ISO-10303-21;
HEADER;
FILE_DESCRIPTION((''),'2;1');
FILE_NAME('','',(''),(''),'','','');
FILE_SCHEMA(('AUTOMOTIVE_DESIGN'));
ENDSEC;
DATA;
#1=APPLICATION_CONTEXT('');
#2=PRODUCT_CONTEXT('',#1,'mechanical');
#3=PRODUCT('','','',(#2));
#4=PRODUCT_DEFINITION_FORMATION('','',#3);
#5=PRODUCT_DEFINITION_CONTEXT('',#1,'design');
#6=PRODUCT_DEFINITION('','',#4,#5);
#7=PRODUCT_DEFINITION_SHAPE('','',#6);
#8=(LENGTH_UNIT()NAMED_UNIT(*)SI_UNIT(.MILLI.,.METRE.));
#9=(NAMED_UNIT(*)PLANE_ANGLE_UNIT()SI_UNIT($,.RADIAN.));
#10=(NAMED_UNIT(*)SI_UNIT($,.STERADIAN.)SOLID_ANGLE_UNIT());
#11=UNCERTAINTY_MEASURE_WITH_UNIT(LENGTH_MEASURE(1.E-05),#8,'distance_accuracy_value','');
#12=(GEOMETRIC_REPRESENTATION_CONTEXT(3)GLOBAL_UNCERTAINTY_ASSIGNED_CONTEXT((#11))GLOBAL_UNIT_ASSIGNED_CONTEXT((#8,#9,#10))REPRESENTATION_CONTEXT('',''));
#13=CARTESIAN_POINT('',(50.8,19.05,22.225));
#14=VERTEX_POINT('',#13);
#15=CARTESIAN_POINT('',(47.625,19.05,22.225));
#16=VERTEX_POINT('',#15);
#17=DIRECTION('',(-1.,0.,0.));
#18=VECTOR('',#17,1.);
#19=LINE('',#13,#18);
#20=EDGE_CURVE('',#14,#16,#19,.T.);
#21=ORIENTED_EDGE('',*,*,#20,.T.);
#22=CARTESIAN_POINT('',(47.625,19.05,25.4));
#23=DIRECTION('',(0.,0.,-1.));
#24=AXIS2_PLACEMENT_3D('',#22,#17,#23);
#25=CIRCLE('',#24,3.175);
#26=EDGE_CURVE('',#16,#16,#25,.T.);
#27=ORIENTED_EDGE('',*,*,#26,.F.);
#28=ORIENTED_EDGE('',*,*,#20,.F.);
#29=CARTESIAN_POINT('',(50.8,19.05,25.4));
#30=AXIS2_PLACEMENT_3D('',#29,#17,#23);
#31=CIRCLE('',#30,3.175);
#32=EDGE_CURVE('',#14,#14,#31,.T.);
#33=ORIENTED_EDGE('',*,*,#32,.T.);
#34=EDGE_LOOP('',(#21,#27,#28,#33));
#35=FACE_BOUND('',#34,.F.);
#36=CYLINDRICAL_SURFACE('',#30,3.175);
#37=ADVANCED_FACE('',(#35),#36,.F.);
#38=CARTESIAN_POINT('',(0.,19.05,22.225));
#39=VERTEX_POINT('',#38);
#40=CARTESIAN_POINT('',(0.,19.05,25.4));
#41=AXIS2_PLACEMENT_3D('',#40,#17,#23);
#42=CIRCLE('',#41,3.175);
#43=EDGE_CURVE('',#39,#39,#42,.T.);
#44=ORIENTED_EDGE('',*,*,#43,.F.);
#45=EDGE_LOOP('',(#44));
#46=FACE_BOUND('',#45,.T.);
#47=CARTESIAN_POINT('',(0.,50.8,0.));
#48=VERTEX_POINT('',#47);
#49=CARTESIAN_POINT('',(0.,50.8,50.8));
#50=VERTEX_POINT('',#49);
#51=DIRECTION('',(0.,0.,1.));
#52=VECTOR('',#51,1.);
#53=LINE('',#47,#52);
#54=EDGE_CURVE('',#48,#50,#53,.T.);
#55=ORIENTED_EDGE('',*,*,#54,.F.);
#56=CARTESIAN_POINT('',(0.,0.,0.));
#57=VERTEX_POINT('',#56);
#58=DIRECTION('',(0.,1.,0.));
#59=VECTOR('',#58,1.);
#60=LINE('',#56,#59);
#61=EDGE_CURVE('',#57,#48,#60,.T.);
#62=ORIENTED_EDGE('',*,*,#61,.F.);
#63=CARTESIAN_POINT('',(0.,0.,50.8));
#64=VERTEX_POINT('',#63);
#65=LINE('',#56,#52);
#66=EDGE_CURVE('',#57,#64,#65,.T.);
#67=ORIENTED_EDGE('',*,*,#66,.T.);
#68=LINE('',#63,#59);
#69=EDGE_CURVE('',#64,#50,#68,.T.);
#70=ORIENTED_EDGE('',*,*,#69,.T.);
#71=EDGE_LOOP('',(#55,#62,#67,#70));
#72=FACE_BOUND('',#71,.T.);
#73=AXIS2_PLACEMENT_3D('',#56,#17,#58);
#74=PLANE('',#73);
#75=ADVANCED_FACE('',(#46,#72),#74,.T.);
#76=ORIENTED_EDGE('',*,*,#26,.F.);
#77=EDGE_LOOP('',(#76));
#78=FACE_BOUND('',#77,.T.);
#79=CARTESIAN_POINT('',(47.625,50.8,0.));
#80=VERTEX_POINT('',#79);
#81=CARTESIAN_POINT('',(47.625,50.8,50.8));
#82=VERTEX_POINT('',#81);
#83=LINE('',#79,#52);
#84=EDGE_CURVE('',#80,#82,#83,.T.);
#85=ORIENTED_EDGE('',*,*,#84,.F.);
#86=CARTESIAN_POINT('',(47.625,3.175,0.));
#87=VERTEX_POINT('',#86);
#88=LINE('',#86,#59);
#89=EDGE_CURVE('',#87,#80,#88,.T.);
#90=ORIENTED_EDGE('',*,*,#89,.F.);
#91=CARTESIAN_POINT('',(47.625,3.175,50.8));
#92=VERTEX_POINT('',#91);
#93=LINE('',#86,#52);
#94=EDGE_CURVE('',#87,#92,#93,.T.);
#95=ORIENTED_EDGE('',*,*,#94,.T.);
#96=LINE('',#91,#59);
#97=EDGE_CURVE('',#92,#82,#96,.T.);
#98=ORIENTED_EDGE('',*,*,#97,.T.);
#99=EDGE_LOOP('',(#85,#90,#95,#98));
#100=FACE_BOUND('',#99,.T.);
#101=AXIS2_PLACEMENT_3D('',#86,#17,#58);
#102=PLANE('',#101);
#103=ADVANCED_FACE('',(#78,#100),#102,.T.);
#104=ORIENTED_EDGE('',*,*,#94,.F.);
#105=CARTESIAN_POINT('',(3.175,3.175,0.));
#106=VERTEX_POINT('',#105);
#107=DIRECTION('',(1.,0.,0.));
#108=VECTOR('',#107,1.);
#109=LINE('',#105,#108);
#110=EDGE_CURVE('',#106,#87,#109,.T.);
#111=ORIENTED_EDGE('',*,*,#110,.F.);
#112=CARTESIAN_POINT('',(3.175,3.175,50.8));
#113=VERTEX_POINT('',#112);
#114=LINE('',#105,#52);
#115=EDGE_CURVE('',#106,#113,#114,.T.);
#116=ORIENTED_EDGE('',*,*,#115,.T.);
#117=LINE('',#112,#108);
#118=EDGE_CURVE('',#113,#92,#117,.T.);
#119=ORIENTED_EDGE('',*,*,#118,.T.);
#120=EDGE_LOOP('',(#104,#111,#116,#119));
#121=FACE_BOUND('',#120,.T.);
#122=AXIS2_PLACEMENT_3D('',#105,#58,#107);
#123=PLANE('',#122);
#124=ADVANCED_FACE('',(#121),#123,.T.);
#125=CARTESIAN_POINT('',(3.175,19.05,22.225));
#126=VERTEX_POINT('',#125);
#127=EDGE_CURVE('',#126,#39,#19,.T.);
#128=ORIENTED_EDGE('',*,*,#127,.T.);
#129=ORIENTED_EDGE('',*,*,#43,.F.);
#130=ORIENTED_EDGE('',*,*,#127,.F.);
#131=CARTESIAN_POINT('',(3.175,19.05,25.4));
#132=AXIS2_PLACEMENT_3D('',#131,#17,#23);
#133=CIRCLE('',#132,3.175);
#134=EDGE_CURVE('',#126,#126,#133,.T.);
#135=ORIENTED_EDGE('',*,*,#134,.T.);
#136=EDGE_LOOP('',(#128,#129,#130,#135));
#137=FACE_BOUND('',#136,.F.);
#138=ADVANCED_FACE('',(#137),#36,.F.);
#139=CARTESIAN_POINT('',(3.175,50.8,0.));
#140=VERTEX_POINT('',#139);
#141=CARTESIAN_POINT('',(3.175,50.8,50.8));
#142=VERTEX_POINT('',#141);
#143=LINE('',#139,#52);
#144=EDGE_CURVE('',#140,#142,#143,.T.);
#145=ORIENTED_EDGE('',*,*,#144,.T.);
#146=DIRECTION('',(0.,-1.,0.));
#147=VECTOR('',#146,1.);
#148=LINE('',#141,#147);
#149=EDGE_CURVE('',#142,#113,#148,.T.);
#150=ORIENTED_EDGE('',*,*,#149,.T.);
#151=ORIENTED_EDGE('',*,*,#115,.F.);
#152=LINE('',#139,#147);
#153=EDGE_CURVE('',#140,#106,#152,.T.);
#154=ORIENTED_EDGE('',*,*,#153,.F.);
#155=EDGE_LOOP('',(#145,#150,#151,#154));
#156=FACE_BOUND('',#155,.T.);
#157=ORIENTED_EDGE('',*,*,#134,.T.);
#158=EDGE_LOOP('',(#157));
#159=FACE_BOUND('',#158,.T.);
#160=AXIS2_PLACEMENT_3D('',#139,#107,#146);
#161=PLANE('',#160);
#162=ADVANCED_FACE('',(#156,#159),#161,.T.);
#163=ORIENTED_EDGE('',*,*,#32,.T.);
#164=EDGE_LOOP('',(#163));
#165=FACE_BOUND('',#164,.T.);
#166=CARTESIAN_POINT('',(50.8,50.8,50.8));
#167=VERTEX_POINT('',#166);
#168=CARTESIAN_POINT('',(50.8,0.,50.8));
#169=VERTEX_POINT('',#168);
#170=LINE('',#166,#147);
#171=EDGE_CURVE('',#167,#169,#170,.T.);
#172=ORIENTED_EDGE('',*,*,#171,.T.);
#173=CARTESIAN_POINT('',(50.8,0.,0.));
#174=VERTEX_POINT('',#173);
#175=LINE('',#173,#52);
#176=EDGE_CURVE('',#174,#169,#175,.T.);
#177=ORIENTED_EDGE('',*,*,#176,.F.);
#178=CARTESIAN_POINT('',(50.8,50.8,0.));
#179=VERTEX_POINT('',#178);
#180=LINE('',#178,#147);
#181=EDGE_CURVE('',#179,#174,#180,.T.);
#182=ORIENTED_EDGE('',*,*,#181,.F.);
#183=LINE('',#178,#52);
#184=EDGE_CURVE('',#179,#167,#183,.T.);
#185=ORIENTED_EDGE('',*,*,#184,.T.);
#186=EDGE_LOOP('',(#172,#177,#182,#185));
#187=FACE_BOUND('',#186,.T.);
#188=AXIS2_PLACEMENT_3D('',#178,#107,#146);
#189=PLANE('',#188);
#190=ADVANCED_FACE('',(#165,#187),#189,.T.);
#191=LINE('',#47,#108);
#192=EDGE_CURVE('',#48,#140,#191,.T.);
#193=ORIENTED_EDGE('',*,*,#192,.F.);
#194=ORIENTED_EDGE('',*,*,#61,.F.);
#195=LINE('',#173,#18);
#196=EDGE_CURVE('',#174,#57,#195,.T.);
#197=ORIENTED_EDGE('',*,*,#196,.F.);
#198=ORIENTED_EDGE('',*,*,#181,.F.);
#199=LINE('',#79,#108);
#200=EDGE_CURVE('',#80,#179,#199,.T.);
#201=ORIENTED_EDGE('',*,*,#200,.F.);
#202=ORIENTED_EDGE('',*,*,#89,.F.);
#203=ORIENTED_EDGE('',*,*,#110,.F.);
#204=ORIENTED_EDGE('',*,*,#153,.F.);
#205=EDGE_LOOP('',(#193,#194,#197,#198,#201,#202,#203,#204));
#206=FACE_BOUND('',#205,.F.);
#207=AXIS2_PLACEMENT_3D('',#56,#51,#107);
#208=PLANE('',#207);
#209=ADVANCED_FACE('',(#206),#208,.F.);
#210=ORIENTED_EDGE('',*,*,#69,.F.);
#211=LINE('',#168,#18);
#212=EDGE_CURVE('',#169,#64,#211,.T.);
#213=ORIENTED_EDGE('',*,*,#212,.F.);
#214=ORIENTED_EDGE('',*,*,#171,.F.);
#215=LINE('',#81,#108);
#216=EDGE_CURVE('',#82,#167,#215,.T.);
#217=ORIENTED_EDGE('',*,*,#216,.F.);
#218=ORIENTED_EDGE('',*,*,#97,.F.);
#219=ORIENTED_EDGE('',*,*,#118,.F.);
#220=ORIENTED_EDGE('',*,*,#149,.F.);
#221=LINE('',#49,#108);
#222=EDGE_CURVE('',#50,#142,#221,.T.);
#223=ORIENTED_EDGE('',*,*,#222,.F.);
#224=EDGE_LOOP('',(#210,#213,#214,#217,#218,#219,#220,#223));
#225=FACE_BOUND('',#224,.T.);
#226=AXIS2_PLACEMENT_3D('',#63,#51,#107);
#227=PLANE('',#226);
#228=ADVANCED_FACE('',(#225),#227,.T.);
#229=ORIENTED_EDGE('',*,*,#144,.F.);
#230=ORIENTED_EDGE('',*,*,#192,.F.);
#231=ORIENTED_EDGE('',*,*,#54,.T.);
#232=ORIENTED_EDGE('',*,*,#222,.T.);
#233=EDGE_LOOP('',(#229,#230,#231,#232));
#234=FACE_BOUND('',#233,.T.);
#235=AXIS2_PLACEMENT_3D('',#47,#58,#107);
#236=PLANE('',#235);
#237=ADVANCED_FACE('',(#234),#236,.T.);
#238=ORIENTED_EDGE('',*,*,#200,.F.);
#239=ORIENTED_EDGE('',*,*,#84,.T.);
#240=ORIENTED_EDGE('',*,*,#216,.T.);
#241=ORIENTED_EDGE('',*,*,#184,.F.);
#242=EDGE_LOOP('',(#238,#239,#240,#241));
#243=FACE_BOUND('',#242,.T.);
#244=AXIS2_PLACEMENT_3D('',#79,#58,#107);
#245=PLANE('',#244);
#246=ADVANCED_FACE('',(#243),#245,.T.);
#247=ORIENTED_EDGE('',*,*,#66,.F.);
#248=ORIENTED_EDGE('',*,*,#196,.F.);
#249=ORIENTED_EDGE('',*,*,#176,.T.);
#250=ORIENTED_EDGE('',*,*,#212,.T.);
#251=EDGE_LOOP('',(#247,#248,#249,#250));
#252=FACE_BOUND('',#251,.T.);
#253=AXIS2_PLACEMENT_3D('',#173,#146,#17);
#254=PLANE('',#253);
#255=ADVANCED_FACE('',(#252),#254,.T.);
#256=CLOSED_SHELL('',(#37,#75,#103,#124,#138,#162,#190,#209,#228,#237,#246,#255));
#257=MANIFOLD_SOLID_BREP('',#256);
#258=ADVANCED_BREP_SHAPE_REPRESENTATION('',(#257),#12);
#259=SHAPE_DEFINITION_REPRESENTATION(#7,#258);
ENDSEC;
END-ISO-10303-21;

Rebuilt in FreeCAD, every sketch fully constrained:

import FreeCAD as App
import Part
import Sketcher
Q = App.Units.Quantity

doc = App.newDocument("Part")
body = doc.addObject("PartDesign::Body", "Body")

# Sketch on XY plane
sketch1 = body.newObject("Sketcher::SketchObject", "Sketch")
sketch1.AttachmentSupport = (doc.getObject("XY_Plane"), [""])
sketch1.MapMode = "FlatFace"
sketch1.addGeometry([
    Part.LineSegment(App.Vector(0, 50.8, 0), App.Vector(0, 0, 0)),  # 0
    Part.LineSegment(App.Vector(0, 0, 0), App.Vector(50.8, 0, 0)),  # 1
    Part.LineSegment(App.Vector(50.8, 0, 0), App.Vector(50.8, 50.8, 0)),  # 2
    Part.LineSegment(App.Vector(50.8, 50.8, 0), App.Vector(47.6, 50.8, 0)),  # 3
    Part.LineSegment(App.Vector(47.6, 50.8, 0), App.Vector(47.6, 3.2, 0)),  # 4
    Part.LineSegment(App.Vector(47.6, 3.2, 0), App.Vector(3.2, 3.2, 0)),  # 5
    Part.LineSegment(App.Vector(3.2, 3.2, 0), App.Vector(3.2, 50.8, 0)),  # 6
    Part.LineSegment(App.Vector(3.2, 50.8, 0), App.Vector(0, 50.8, 0)),  # 7
], False)
sketch1.addConstraint([
    Sketcher.Constraint("Coincident", 0, 2, 1, 1),
    Sketcher.Constraint("Coincident", 1, 2, 2, 1),
    Sketcher.Constraint("Coincident", 2, 2, 3, 1),
    Sketcher.Constraint("Coincident", 3, 2, 4, 1),
    Sketcher.Constraint("Coincident", 4, 2, 5, 1),
    Sketcher.Constraint("Coincident", 5, 2, 6, 1),
    Sketcher.Constraint("Coincident", 6, 2, 7, 1),
    Sketcher.Constraint("Coincident", 7, 2, 0, 1),
    Sketcher.Constraint("Vertical", 0),
    Sketcher.Constraint("Horizontal", 1),
    Sketcher.Constraint("Vertical", 2),
    Sketcher.Constraint("Horizontal", 3),
    Sketcher.Constraint("Vertical", 4),
    Sketcher.Constraint("Horizontal", 5),
    Sketcher.Constraint("Vertical", 6),
    Sketcher.Constraint("Horizontal", 7),
    Sketcher.Constraint("Coincident", 0, 2, -1, 1),
    Sketcher.Constraint("Horizontal", 3, 2, 6, 2),
    Sketcher.Constraint("Equal", 3, 7),
    Sketcher.Constraint("Equal", 1, 0),
    Sketcher.Constraint("DistanceX", 1, 1, 1, 2, Q("2 in")),
    Sketcher.Constraint("DistanceX", 3, 2, 3, 1, Q("0.125 in")),
    Sketcher.Constraint("DistanceY", -1, 1, 4, 2, Q("0.125 in")),
])
pad1 = body.newObject("PartDesign::Pad", "Pad")
pad1.Profile = sketch1
pad1.Length = Q("2 in")

# Sketch on YZ plane
sketch2 = body.newObject("Sketcher::SketchObject", "Sketch001")
sketch2.AttachmentSupport = (doc.getObject("YZ_Plane"), [""])
sketch2.MapMode = "FlatFace"
sketch2.AttachmentOffset = App.Placement(App.Vector(0, 0, 2 * 25.4), App.Rotation())
sketch2.addGeometry(Part.Circle(App.Vector(19.1, 25.4, 0), App.Vector(0, 0, 1), 3.2), False)
sketch2.addConstraint([
    Sketcher.Constraint("Diameter", 0, Q("0.25 in")),
    Sketcher.Constraint("DistanceY", -1, 1, 0, 3, Q("1 in")),
    Sketcher.Constraint("DistanceX", -1, 1, 0, 3, Q("0.75 in")),
])
doc.recompute()
hole = body.newObject("PartDesign::Hole", "Hole")
hole.Profile = sketch2
hole.ThreadType = "None"
hole.Diameter = Q("0.25 in")
hole.DepthType = "ThroughAll"

doc.recompute()
